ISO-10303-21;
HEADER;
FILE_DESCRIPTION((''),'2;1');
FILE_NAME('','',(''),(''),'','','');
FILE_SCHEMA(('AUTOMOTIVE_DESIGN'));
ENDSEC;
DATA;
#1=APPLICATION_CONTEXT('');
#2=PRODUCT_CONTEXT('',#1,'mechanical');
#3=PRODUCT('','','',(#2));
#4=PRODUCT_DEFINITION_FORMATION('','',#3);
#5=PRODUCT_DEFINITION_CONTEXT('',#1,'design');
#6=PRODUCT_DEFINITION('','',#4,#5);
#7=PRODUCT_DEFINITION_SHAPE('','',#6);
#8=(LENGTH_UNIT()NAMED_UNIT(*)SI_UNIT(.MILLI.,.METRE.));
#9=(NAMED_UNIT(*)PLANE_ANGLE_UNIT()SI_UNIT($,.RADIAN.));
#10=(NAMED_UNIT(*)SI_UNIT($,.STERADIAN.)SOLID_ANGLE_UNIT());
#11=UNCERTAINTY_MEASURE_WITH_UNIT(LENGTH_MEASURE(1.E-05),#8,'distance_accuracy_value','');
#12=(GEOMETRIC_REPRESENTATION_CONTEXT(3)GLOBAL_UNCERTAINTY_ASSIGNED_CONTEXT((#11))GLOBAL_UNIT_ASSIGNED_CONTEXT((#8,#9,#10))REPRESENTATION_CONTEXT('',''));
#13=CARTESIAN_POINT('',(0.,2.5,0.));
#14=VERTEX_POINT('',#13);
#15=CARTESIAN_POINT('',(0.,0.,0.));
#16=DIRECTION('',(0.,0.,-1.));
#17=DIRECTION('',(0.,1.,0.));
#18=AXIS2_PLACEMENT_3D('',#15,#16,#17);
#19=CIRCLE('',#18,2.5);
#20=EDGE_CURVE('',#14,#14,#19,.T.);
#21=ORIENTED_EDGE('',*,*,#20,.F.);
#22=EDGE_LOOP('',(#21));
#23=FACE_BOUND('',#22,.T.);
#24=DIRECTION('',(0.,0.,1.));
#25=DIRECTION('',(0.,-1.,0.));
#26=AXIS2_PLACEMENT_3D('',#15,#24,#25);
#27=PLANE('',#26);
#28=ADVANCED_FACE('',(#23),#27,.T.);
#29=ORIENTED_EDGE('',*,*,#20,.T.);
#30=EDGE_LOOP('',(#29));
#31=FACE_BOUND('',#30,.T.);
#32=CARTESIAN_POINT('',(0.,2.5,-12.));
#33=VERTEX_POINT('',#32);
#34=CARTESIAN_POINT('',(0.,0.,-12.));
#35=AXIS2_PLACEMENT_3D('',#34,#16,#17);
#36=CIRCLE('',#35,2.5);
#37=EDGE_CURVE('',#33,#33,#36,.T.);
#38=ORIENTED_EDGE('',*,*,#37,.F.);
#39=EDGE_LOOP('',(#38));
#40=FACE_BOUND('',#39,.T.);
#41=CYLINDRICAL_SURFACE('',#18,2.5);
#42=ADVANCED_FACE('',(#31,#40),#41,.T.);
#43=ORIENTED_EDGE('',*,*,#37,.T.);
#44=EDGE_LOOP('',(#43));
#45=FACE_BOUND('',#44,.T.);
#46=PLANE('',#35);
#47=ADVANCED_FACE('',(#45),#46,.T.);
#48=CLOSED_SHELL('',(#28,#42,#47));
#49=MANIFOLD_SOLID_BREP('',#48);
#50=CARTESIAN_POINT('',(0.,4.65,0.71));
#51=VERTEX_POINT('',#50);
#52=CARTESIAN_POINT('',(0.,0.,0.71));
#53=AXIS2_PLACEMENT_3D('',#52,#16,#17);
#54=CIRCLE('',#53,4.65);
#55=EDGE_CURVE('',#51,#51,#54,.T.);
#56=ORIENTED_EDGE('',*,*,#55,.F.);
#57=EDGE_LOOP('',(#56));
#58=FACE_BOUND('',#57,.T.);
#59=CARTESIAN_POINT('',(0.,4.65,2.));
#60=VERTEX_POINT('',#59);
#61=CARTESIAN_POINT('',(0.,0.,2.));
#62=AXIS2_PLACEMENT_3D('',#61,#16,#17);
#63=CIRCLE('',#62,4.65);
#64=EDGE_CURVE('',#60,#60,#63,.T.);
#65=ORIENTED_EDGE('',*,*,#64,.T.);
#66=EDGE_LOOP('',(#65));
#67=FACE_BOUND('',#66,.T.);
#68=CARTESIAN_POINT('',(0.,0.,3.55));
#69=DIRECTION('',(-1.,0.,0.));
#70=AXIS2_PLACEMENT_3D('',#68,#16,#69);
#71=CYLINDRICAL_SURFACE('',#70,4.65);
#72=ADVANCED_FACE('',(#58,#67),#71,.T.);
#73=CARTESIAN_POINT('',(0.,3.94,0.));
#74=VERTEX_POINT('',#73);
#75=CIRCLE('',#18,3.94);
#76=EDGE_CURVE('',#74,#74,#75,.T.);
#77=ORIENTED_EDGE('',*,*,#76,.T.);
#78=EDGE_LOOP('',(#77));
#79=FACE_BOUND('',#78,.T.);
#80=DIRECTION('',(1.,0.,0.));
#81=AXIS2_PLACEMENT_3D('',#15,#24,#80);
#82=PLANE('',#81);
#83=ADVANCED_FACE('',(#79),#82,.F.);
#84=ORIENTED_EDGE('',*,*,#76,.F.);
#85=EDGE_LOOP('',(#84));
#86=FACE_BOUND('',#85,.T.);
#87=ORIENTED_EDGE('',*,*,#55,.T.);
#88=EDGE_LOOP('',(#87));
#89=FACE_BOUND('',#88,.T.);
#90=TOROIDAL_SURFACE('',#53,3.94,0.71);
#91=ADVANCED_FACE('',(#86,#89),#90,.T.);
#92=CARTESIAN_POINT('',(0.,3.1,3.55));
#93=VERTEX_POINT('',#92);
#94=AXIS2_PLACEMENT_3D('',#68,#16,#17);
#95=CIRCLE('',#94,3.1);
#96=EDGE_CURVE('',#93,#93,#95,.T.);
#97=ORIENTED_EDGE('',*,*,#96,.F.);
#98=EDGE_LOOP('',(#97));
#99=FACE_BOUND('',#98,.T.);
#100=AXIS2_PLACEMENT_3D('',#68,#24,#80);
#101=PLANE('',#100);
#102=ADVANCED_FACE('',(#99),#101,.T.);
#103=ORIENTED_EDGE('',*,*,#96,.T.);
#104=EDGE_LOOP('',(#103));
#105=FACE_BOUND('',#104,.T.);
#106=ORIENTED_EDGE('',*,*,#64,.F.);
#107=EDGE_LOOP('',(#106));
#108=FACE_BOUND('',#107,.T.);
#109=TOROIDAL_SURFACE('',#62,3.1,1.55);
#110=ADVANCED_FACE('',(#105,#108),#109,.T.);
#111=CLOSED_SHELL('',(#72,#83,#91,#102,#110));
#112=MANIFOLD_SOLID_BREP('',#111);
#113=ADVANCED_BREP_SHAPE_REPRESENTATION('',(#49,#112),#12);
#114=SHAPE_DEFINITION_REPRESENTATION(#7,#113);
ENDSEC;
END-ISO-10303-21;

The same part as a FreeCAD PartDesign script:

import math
import FreeCAD as App
import Part
import Sketcher

V = App.Vector

doc = App.newDocument("Part")
body = doc.addObject("PartDesign::Body", "Body")

sketch1 = doc.addObject("Sketcher::SketchObject", "Sketch")
body.addObject(sketch1)
sketch1.AttachmentSupport = (doc.XY_Plane, [""])
sketch1.MapMode = "FlatFace"
sketch1.addGeometry(Part.Circle(V(0, 0, 0), V(0, 0, 1), 4.65), False)
sketch1.addConstraint([
    Sketcher.Constraint("Coincident", 0, 3, -1, 1),
    Sketcher.Constraint("Diameter", 0, 9.3),
])
pad1 = doc.addObject("PartDesign::Pad", "Pad")
body.addObject(pad1)
pad1.Profile = sketch1
pad1.Length = 3.55

sketch2 = doc.addObject("Sketcher::SketchObject", "Sketch001")
body.addObject(sketch2)
sketch2.AttachmentSupport = (doc.YZ_Plane, [""])
sketch2.MapMode = "FlatFace"
sketch2.addGeometry([
    Part.LineSegment(V(4.65, 2, 0), V(4.65, 0.71, 0)),
    Part.ArcOfCircle(Part.Circle(V(3.94, 0.71, 0), V(0, 0, 1), 0.71), math.radians(-90), math.radians(0)),
    Part.LineSegment(V(3.94, 0, 0), V(3.94, -0.254, 0)),
    Part.LineSegment(V(3.94, -0.254, 0), V(4.904, -0.254, 0)),
    Part.LineSegment(V(4.904, -0.254, 0), V(4.904, 3.804, 0)),
    Part.LineSegment(V(4.904, 3.804, 0), V(3.1, 3.804, 0)),
    Part.LineSegment(V(3.1, 3.804, 0), V(3.1, 3.55, 0)),
    Part.ArcOfCircle(Part.Circle(V(3.1, 2, 0), V(0, 0, 1), 1.55), math.radians(0), math.radians(90)),
], False)
sketch2.addConstraint([
    Sketcher.Constraint("Tangent", 0, 2, 1, 2),
    Sketcher.Constraint("Coincident", 1, 1, 2, 1),
    Sketcher.Constraint("Coincident", 2, 2, 3, 1),
    Sketcher.Constraint("Coincident", 3, 2, 4, 1),
    Sketcher.Constraint("Coincident", 4, 2, 5, 1),
    Sketcher.Constraint("Coincident", 5, 2, 6, 1),
    Sketcher.Constraint("Coincident", 6, 2, 7, 2),
    Sketcher.Constraint("Tangent", 7, 1, 0, 1),
    Sketcher.Constraint("Vertical", 0),
    Sketcher.Constraint("Vertical", 2),
    Sketcher.Constraint("Horizontal", 3),
    Sketcher.Constraint("Vertical", 4),
    Sketcher.Constraint("Horizontal", 5),
    Sketcher.Constraint("Vertical", 6),
    Sketcher.Constraint("PointOnObject", 1, 1, -1),
    Sketcher.Constraint("Vertical", 7, 3, 5, 2),
    Sketcher.Constraint("Equal", 2, 6),
    Sketcher.Constraint("Radius", 1, 0.71),
    Sketcher.Constraint("Radius", 7, 1.55),
    Sketcher.Constraint("DistanceY", -1, 1, 7, 3, 2.0),
    Sketcher.Constraint("DistanceX", -1, 1, 7, 3, 3.1),
    Sketcher.Constraint("DistanceX", 3, 1, 3, 2, 0.964),
    Sketcher.Constraint("DistanceX", 5, 2, 5, 1, 1.804),
    Sketcher.Constraint("DistanceY", 2, 2, 2, 1, 0.254),
])
groove = doc.addObject("PartDesign::Groove", "Groove")
body.addObject(groove)
groove.Profile = sketch2
groove.ReferenceAxis = (sketch2, ["V_Axis"])
groove.Angle = 360
body2 = doc.addObject("PartDesign::Body", "Body001")

sketch3 = doc.addObject("Sketcher::SketchObject", "Sketch002")
body2.addObject(sketch3)
sketch3.AttachmentSupport = (doc.getObject("YZ_Plane001"), [""])
sketch3.MapMode = "FlatFace"
sketch3.addGeometry([
    Part.LineSegment(V(2.5, 0, 0), V(0, 0, 0)),
    Part.LineSegment(V(0, 0, 0), V(0, -12, 0)),
    Part.LineSegment(V(0, -12, 0), V(2.5, -12, 0)),
    Part.LineSegment(V(2.5, -12, 0), V(2.5, 0, 0)),
], False)
sketch3.addConstraint([
    Sketcher.Constraint("Coincident", 0, 2, 1, 1),
    Sketcher.Constraint("Coincident", 1, 2, 2, 1),
    Sketcher.Constraint("Coincident", 2, 2, 3, 1),
    Sketcher.Constraint("Coincident", 3, 2, 0, 1),
    Sketcher.Constraint("Horizontal", 0),
    Sketcher.Constraint("Vertical", 1),
    Sketcher.Constraint("Horizontal", 2),
    Sketcher.Constraint("Vertical", 3),
    Sketcher.Constraint("Coincident", 0, 2, -1, 1),
    Sketcher.Constraint("DistanceY", 1, 2, 1, 1, 12.0),
    Sketcher.Constraint("DistanceX", 0, 2, 0, 1, 2.5),
])
revolution = doc.addObject("PartDesign::Revolution", "Revolution")
body2.addObject(revolution)
revolution.Profile = sketch3
revolution.ReferenceAxis = (sketch3, ["V_Axis"])
revolution.Angle = 360

doc.recompute()
